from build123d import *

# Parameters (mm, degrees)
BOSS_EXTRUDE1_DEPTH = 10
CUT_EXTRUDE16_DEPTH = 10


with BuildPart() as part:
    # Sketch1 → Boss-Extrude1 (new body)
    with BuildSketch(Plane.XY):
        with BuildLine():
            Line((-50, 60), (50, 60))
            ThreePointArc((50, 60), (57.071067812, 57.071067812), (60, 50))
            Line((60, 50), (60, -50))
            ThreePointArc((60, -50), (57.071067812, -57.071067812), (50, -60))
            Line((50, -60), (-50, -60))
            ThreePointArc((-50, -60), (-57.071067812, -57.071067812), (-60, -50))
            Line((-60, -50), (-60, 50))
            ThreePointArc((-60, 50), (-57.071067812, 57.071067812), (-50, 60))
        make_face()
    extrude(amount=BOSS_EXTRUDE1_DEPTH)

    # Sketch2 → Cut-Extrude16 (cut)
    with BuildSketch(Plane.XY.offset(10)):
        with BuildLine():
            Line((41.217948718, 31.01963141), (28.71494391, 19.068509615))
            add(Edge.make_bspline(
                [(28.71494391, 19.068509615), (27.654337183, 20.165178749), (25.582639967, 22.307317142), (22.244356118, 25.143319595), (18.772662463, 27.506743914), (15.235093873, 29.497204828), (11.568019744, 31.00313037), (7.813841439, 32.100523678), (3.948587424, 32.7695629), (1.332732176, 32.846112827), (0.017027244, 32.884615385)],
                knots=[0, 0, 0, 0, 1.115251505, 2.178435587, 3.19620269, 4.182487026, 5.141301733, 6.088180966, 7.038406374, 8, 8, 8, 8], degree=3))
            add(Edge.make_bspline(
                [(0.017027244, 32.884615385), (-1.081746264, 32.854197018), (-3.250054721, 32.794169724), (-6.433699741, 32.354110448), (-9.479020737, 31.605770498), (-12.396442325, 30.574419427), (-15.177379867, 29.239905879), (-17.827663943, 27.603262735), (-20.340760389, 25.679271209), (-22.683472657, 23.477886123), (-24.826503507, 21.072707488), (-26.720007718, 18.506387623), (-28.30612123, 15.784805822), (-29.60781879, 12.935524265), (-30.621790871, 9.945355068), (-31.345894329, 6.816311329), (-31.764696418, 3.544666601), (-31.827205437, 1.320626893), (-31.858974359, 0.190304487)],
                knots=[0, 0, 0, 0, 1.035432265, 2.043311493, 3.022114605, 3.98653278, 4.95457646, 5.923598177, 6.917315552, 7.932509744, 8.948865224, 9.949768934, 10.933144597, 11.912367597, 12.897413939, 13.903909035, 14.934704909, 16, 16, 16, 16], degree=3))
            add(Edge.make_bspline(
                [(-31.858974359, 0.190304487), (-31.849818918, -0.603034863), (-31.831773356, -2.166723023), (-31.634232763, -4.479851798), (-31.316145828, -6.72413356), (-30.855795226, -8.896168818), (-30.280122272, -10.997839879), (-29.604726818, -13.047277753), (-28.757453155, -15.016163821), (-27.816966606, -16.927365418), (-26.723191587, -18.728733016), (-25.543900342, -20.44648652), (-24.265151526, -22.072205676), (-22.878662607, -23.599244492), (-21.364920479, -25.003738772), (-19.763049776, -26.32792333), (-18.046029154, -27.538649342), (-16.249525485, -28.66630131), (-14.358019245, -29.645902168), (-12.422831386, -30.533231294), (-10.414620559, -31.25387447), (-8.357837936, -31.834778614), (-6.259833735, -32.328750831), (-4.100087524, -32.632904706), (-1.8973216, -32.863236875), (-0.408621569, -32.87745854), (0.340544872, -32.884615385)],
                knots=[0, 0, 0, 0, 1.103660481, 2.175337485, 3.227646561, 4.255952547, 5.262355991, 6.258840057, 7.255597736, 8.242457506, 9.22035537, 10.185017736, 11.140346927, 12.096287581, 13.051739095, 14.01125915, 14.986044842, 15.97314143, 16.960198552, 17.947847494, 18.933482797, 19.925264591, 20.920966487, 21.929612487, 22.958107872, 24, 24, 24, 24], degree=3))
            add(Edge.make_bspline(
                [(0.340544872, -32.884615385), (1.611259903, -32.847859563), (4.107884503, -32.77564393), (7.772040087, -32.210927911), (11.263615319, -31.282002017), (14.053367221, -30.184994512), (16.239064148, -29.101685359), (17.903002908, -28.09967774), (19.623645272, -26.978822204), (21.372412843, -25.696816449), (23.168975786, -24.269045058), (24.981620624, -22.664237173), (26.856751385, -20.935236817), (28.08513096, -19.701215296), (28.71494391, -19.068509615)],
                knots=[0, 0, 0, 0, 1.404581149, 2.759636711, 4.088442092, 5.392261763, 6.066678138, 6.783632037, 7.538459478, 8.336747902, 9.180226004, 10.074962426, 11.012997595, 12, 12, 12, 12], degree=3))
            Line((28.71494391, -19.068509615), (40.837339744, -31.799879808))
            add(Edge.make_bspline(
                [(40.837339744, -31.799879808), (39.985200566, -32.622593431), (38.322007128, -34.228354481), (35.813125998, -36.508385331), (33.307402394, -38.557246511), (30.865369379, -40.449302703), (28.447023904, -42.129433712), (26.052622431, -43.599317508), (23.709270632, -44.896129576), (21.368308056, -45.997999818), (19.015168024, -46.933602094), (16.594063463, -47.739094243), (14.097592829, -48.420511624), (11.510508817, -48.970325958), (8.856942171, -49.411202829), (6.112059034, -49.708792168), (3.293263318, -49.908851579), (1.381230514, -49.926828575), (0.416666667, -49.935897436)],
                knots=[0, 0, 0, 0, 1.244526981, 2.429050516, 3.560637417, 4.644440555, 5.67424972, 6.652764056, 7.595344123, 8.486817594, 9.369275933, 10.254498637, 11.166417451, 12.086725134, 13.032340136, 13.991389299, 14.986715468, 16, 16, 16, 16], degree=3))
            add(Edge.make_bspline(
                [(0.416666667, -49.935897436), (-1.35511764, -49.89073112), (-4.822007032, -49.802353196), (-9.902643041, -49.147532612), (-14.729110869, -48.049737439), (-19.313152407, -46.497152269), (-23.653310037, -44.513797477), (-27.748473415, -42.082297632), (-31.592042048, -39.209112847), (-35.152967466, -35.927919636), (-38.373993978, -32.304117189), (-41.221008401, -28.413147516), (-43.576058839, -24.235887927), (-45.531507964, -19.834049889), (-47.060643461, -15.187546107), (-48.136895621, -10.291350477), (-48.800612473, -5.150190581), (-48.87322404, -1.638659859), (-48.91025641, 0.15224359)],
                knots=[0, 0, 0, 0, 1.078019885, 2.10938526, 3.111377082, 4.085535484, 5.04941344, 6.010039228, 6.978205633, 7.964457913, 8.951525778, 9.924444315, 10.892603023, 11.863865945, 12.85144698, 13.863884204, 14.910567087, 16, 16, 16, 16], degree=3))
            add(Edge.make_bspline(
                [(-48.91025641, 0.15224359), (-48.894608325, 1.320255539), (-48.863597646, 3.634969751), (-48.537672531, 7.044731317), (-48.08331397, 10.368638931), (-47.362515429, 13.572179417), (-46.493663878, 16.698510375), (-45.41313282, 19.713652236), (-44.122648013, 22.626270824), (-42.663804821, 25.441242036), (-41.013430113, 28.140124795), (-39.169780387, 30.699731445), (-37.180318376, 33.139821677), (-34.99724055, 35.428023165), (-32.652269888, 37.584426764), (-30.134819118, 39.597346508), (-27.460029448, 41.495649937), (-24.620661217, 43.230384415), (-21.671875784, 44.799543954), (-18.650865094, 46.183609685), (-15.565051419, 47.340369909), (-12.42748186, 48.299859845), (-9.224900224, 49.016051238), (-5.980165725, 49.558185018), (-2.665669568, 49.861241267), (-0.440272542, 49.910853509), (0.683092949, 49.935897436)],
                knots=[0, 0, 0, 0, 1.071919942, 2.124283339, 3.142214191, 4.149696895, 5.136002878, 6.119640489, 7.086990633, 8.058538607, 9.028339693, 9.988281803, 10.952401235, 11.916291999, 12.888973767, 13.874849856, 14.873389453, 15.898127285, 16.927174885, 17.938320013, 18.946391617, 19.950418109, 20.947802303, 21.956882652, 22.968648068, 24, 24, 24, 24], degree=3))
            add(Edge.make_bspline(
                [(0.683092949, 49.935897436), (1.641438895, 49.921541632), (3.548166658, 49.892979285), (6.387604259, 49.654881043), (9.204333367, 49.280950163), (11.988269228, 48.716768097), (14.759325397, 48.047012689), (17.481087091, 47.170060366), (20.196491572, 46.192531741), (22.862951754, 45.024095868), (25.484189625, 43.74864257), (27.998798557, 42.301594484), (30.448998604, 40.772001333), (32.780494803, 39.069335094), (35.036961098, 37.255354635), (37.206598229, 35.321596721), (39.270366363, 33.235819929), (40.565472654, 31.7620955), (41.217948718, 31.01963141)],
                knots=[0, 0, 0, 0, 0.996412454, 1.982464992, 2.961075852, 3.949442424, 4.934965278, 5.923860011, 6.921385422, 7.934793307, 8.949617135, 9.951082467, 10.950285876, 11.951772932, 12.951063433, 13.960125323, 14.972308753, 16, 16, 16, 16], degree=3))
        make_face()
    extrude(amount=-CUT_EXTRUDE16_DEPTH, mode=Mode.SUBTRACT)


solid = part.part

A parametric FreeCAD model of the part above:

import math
import FreeCAD as App
import Part
import Sketcher

V = App.Vector

doc = App.newDocument("Part")
body = doc.addObject("PartDesign::Body", "Body")

# Sketch on XY plane
sketch1 = body.newObject("Sketcher::SketchObject", "Sketch")
sketch1.AttachmentSupport = (doc.getObject("XY_Plane"), [""])
sketch1.MapMode = "FlatFace"
sketch1.addGeometry([
    Part.LineSegment(V(50, 60, 0), V(-50, 60, 0)),  # 0
    Part.ArcOfCircle(Part.Circle(V(-50, 50, 0), V(0, 0, 1), 10), math.radians(90), math.radians(180)),  # 1
    Part.LineSegment(V(-60, 50, 0), V(-60, -50, 0)),  # 2
    Part.ArcOfCircle(Part.Circle(V(-50, -50, 0), V(0, 0, 1), 10), math.radians(180), math.radians(270)),  # 3
    Part.LineSegment(V(-50, -60, 0), V(50, -60, 0)),  # 4
    Part.ArcOfCircle(Part.Circle(V(50, -50, 0), V(0, 0, 1), 10), math.radians(-90), math.radians(0)),  # 5
    Part.LineSegment(V(60, -50, 0), V(60, 50, 0)),  # 6
    Part.ArcOfCircle(Part.Circle(V(50, 50, 0), V(0, 0, 1), 10), math.radians(0), math.radians(90)),  # 7
], False)
sketch1.addConstraint([
    Sketcher.Constraint("Tangent", 0, 2, 1, 1),
    Sketcher.Constraint("Tangent", 1, 2, 2, 1),
    Sketcher.Constraint("Tangent", 2, 2, 3, 1),
    Sketcher.Constraint("Tangent", 3, 2, 4, 1),
    Sketcher.Constraint("Tangent", 4, 2, 5, 1),
    Sketcher.Constraint("Tangent", 5, 2, 6, 1),
    Sketcher.Constraint("Tangent", 6, 2, 7, 1),
    Sketcher.Constraint("Tangent", 7, 2, 0, 1),
    Sketcher.Constraint("Horizontal", 0),
    Sketcher.Constraint("Vertical", 2),
    Sketcher.Constraint("Horizontal", 4),
    Sketcher.Constraint("Vertical", 6),
    Sketcher.Constraint("Equal", 1, 3),
    Sketcher.Constraint("Equal", 3, 5),
    Sketcher.Constraint("Equal", 5, 7),
    Sketcher.Constraint("Symmetric", 1, 3, 5, 3, -1, 1),
    Sketcher.Constraint("Equal", 4, 2),
    Sketcher.Constraint("Radius", 1, 10.0),
    Sketcher.Constraint("DistanceX", 0, 2, 0, 1, 100.0),
])
pad1 = body.newObject("PartDesign::Pad", "Pad")
pad1.Profile = sketch1
pad1.Length = 10

# Sketch on XY plane
sketch2 = body.newObject("Sketcher::SketchObject", "Sketch001")
sketch2.AttachmentSupport = (doc.getObject("XY_Plane"), [""])
sketch2.MapMode = "FlatFace"
sketch2.AttachmentOffset = App.Placement(V(0, 0, 10), App.Rotation())
sketch2.addGeometry([
    Part.LineSegment(V(28.714944, 19.06851, 0), V(41.217949, 31.019631, 0)),  # 0
    Part.BSplineCurve([V(0.683093, 49.935897, 0), V(1.641439, 49.921542, 0), V(3.548167, 49.892979, 0), V(6.387604, 49.654881, 0), V(9.204333, 49.28095, 0), V(11.988269, 48.716768, 0), V(14.759325, 48.047013, 0), V(17.481087, 47.17006, 0), V(20.196492, 46.192532, 0), V(22.862952, 45.024096, 0), V(25.48419, 43.748643, 0), V(27.998799, 42.301594, 0), V(30.448999, 40.772001, 0), V(32.780495, 39.069335, 0), V(35.036961, 37.255355, 0), V(37.206598, 35.321597, 0), V(39.270366, 33.23582, 0), V(40.565473, 31.762096, 0), V(41.217949, 31.019631, 0)], [4, 1, 1, 1, 1, 1, 1, 1, 1, 1, 1, 1, 1, 1, 1, 1, 4], [0, 0.996412454, 1.982464992, 2.961075852, 3.949442424, 4.934965278, 5.923860011, 6.921385422, 7.934793307, 8.949617135, 9.951082467, 10.950285876, 11.951772932, 12.951063433, 13.960125323, 14.972308753, 16], False, 3, [1, 1, 1, 1, 1, 1, 1, 1, 1, 1, 1, 1, 1, 1, 1, 1, 1, 1, 1], False),  # 1
    Part.BSplineCurve([V(-48.910256, 0.152244, 0), V(-48.894608, 1.320256, 0), V(-48.863598, 3.63497, 0), V(-48.537673, 7.044731, 0), V(-48.083314, 10.368639, 0), V(-47.362515, 13.572179, 0), V(-46.493664, 16.69851, 0), V(-45.413133, 19.713652, 0), V(-44.122648, 22.626271, 0), V(-42.663805, 25.441242, 0), V(-41.01343, 28.140125, 0), V(-39.16978, 30.699731, 0), V(-37.180318, 33.139822, 0), V(-34.997241, 35.428023, 0), V(-32.65227, 37.584427, 0), V(-30.134819, 39.597347, 0), V(-27.460029, 41.49565, 0), V(-24.620661, 43.230384, 0), V(-21.671876, 44.799544, 0), V(-18.650865, 46.18361, 0), V(-15.565051, 47.34037, 0), V(-12.427482, 48.29986, 0), V(-9.2249, 49.016051, 0), V(-5.980166, 49.558185, 0), V(-2.66567, 49.861241, 0), V(-0.440273, 49.910854, 0), V(0.683093, 49.935897, 0)], [4, 1, 1, 1, 1, 1, 1, 1, 1, 1, 1, 1, 1, 1, 1, 1, 1, 1, 1, 1, 1, 1, 1, 1, 4], [0, 1.071919942, 2.124283339, 3.142214191, 4.149696895, 5.136002878, 6.119640489, 7.086990633, 8.058538607, 9.028339693, 9.988281803, 10.952401235, 11.916291999, 12.888973767, 13.874849856, 14.873389453, 15.898127285, 16.927174885, 17.938320013, 18.946391617, 19.950418109, 20.947802303, 21.956882652, 22.968648068, 24], False, 3, [1, 1, 1, 1, 1, 1, 1, 1, 1, 1, 1, 1, 1, 1, 1, 1, 1, 1, 1, 1, 1, 1, 1, 1, 1, 1, 1], False),  # 2
    Part.BSplineCurve([V(0.416667, -49.935897, 0), V(-1.355118, -49.890731, 0), V(-4.822007, -49.802353, 0), V(-9.902643, -49.147533, 0), V(-14.729111, -48.049737, 0), V(-19.313152, -46.497152, 0), V(-23.65331, -44.513797, 0), V(-27.748473, -42.082298, 0), V(-31.592042, -39.209113, 0), V(-35.152967, -35.92792, 0), V(-38.373994, -32.304117, 0), V(-41.221008, -28.413148, 0), V(-43.576059, -24.235888, 0), V(-45.531508, -19.83405, 0), V(-47.060643, -15.187546, 0), V(-48.136896, -10.29135, 0), V(-48.800612, -5.150191, 0), V(-48.873224, -1.63866, 0), V(-48.910256, 0.152244, 0)], [4, 1, 1, 1, 1, 1, 1, 1, 1, 1, 1, 1, 1, 1, 1, 1, 4], [0, 1.078019885, 2.10938526, 3.111377082, 4.085535484, 5.04941344, 6.010039228, 6.978205633, 7.964457913, 8.951525778, 9.924444315, 10.892603023, 11.863865945, 12.85144698, 13.863884204, 14.910567087, 16], False, 3, [1, 1, 1, 1, 1, 1, 1, 1, 1, 1, 1, 1, 1, 1, 1, 1, 1, 1, 1], False),  # 3
    Part.BSplineCurve([V(40.83734, -31.79988, 0), V(39.985201, -32.622593, 0), V(38.322007, -34.228354, 0), V(35.813126, -36.508385, 0), V(33.307402, -38.557247, 0), V(30.865369, -40.449303, 0), V(28.447024, -42.129434, 0), V(26.052622, -43.599318, 0), V(23.709271, -44.89613, 0), V(21.368308, -45.998, 0), V(19.015168, -46.933602, 0), V(16.594063, -47.739094, 0), V(14.097593, -48.420512, 0), V(11.510509, -48.970326, 0), V(8.856942, -49.411203, 0), V(6.112059, -49.708792, 0), V(3.293263, -49.908852, 0), V(1.381231, -49.926829, 0), V(0.416667, -49.935897, 0)], [4, 1, 1, 1, 1, 1, 1, 1, 1, 1, 1, 1, 1, 1, 1, 1, 4], [0, 1.244526981, 2.429050516, 3.560637417, 4.644440555, 5.67424972, 6.652764056, 7.595344123, 8.486817594, 9.369275933, 10.254498637, 11.166417451, 12.086725134, 13.032340136, 13.991389299, 14.986715468, 16], False, 3, [1, 1, 1, 1, 1, 1, 1, 1, 1, 1, 1, 1, 1, 1, 1, 1, 1, 1, 1], False),  # 4
    Part.LineSegment(V(40.83734, -31.79988, 0), V(28.714944, -19.06851, 0)),  # 5
    Part.BSplineCurve([V(0.340545, -32.884615, 0), V(1.61126, -32.84786, 0), V(4.107885, -32.775644, 0), V(7.77204, -32.210928, 0), V(11.263615, -31.282002, 0), V(14.053367, -30.184995, 0), V(16.239064, -29.101685, 0), V(17.903003, -28.099678, 0), V(19.623645, -26.978822, 0), V(21.372413, -25.696816, 0), V(23.168976, -24.269045, 0), V(24.981621, -22.664237, 0), V(26.856751, -20.935237, 0), V(28.085131, -19.701215, 0), V(28.714944, -19.06851, 0)], [4, 1, 1, 1, 1, 1, 1, 1, 1, 1, 1, 1, 4], [0, 1.404581149, 2.759636711, 4.088442092, 5.392261763, 6.066678138, 6.783632037, 7.538459478, 8.336747902, 9.180226004, 10.074962426, 11.012997595, 12], False, 3, [1, 1, 1, 1, 1, 1, 1, 1, 1, 1, 1, 1, 1, 1, 1], False),  # 6
    Part.BSplineCurve([V(-31.858974, 0.190304, 0), V(-31.849819, -0.603035, 0), V(-31.831773, -2.166723, 0), V(-31.634233, -4.479852, 0), V(-31.316146, -6.724134, 0), V(-30.855795, -8.896169, 0), V(-30.280122, -10.99784, 0), V(-29.604727, -13.047278, 0), V(-28.757453, -15.016164, 0), V(-27.816967, -16.927365, 0), V(-26.723192, -18.728733, 0), V(-25.5439, -20.446487, 0), V(-24.265152, -22.072206, 0), V(-22.878663, -23.599244, 0), V(-21.36492, -25.003739, 0), V(-19.76305, -26.327923, 0), V(-18.046029, -27.538649, 0), V(-16.249525, -28.666301, 0), V(-14.358019, -29.645902, 0), V(-12.422831, -30.533231, 0), V(-10.414621, -31.253874, 0), V(-8.357838, -31.834779, 0), V(-6.259834, -32.328751, 0), V(-4.100088, -32.632905, 0), V(-1.897322, -32.863237, 0), V(-0.408622, -32.877459, 0), V(0.340545, -32.884615, 0)], [4, 1, 1, 1, 1, 1, 1, 1, 1, 1, 1, 1, 1, 1, 1, 1, 1, 1, 1, 1, 1, 1, 1, 1, 4], [0, 1.103660481, 2.175337485, 3.227646561, 4.255952547, 5.262355991, 6.258840057, 7.255597736, 8.242457506, 9.22035537, 10.185017736, 11.140346927, 12.096287581, 13.051739095, 14.01125915, 14.986044842, 15.97314143, 16.960198552, 17.947847494, 18.933482797, 19.925264591, 20.920966487, 21.929612487, 22.958107872, 24], False, 3, [1, 1, 1, 1, 1, 1, 1, 1, 1, 1, 1, 1, 1, 1, 1, 1, 1, 1, 1, 1, 1, 1, 1, 1, 1, 1, 1], False),  # 7
    Part.BSplineCurve([V(0.017027, 32.884615, 0), V(-1.081746, 32.854197, 0), V(-3.250055, 32.79417, 0), V(-6.4337, 32.35411, 0), V(-9.479021, 31.60577, 0), V(-12.396442, 30.574419, 0), V(-15.17738, 29.239906, 0), V(-17.827664, 27.603263, 0), V(-20.34076, 25.679271, 0), V(-22.683473, 23.477886, 0), V(-24.826504, 21.072707, 0), V(-26.720008, 18.506388, 0), V(-28.306121, 15.784806, 0), V(-29.607819, 12.935524, 0), V(-30.621791, 9.945355, 0), V(-31.345894, 6.816311, 0), V(-31.764696, 3.544667, 0), V(-31.827205, 1.320627, 0), V(-31.858974, 0.190304, 0)], [4, 1, 1, 1, 1, 1, 1, 1, 1, 1, 1, 1, 1, 1, 1, 1, 4], [0, 1.035432265, 2.043311493, 3.022114605, 3.98653278, 4.95457646, 5.923598177, 6.917315552, 7.932509744, 8.948865224, 9.949768934, 10.933144597, 11.912367597, 12.897413939, 13.903909035, 14.934704909, 16], False, 3, [1, 1, 1, 1, 1, 1, 1, 1, 1, 1, 1, 1, 1, 1, 1, 1, 1, 1, 1], False),  # 8
    Part.BSplineCurve([V(28.714944, 19.06851, 0), V(27.654337, 20.165179, 0), V(25.58264, 22.307317, 0), V(22.244356, 25.14332, 0), V(18.772662, 27.506744, 0), V(15.235094, 29.497205, 0), V(11.56802, 31.00313, 0), V(7.813841, 32.100524, 0), V(3.948587, 32.769563, 0), V(1.332732, 32.846113, 0), V(0.017027, 32.884615, 0)], [4, 1, 1, 1, 1, 1, 1, 1, 4], [0, 1.115251505, 2.178435587, 3.19620269, 4.182487026, 5.141301733, 6.088180966, 7.038406374, 8], False, 3, [1, 1, 1, 1, 1, 1, 1, 1, 1, 1, 1], False),  # 9
], False)
sketch2.addConstraint([
    Sketcher.Constraint("Block", 1),
    Sketcher.Constraint("Block", 2),
    Sketcher.Constraint("Block", 3),
    Sketcher.Constraint("Block", 4),
    Sketcher.Constraint("Block", 6),
    Sketcher.Constraint("Block", 7),
    Sketcher.Constraint("Block", 8),
    Sketcher.Constraint("Block", 9),
    Sketcher.Constraint("Coincident", 0, 2, 1, 2),
    Sketcher.Constraint("Coincident", 4, 1, 5, 1),
    Sketcher.Constraint("Coincident", 5, 2, 6, 2),
    Sketcher.Constraint("Coincident", 9, 1, 0, 1),
])
pocket1 = body.newObject("PartDesign::Pocket", "Pocket")
pocket1.Profile = sketch2
pocket1.Length = 10

doc.recompute()
